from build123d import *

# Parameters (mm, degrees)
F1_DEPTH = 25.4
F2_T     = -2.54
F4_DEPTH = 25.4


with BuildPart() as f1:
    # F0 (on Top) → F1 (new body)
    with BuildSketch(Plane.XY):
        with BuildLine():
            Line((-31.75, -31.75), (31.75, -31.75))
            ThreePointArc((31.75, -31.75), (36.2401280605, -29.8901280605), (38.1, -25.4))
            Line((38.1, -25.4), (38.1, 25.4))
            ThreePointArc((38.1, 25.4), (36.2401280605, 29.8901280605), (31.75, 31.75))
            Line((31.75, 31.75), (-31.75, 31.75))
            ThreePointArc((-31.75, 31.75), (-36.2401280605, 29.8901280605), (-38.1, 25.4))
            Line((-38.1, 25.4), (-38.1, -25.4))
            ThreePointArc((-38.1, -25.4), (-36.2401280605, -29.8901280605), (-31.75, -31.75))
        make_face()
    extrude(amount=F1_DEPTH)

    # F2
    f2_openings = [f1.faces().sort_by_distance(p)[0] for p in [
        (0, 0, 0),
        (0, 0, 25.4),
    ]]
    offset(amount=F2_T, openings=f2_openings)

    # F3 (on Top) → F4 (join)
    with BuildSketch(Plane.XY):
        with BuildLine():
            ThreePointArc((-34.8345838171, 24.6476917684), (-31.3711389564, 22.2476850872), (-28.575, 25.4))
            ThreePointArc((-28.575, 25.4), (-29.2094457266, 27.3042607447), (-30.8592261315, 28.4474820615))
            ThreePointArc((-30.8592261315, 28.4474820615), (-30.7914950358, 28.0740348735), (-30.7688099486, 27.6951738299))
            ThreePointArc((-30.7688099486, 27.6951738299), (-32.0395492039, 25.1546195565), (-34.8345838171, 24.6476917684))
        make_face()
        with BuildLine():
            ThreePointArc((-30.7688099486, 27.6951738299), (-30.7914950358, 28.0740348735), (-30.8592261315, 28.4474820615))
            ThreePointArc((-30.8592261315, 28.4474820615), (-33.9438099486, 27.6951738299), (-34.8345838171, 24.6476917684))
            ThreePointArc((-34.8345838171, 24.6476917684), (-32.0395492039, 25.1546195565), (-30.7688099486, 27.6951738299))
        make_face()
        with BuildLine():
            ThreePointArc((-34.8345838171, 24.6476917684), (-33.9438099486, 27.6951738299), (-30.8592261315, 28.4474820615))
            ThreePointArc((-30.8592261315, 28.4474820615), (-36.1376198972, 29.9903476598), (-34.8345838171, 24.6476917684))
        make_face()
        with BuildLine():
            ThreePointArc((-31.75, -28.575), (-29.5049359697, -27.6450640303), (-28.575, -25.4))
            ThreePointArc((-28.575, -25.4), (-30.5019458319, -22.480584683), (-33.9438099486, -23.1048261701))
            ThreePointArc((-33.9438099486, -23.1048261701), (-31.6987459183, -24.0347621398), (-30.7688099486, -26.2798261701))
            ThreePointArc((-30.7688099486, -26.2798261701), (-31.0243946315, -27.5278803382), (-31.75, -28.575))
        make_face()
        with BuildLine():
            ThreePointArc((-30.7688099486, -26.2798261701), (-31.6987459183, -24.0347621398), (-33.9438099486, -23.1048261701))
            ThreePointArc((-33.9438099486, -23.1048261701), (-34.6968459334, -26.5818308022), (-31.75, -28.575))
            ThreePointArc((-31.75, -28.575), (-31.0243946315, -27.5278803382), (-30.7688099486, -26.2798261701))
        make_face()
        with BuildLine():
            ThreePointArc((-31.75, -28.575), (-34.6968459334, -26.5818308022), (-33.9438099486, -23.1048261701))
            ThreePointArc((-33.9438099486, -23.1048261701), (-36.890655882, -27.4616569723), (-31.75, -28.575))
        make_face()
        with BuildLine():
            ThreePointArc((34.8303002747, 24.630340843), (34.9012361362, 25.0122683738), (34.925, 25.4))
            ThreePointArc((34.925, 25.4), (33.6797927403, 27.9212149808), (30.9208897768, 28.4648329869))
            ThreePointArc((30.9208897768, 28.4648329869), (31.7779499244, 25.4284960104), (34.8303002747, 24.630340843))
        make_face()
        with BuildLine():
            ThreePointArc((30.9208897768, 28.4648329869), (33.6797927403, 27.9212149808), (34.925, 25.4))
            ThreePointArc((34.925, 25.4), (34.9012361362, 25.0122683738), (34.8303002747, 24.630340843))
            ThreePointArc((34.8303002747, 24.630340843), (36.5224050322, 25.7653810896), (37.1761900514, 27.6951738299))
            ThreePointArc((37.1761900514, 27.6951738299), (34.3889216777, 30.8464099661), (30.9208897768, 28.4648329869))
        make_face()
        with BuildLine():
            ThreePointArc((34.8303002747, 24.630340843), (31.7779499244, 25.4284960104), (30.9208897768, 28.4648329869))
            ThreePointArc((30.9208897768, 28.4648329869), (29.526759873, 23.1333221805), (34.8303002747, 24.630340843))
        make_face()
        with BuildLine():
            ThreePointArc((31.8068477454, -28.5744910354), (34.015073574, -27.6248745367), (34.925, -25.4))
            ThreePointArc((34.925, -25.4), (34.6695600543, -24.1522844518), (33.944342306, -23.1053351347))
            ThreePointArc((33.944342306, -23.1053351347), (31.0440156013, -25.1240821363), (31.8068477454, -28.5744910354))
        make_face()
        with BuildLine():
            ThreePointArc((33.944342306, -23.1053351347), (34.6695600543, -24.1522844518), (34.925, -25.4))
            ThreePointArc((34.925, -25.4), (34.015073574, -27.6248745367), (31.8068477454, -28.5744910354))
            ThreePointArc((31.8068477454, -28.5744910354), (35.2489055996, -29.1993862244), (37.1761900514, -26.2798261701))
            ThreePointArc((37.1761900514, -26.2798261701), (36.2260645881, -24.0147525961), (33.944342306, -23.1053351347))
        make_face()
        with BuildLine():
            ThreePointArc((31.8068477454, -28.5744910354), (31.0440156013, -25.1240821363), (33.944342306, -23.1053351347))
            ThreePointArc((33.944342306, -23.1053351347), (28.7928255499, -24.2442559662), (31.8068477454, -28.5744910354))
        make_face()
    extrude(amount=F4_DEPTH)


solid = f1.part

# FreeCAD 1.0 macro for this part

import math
import FreeCAD as App
import Part
import Sketcher
Q = App.Units.Quantity


def faces_at(feature, points):
    """Names of the faces that lie closest to the given points."""
    faces = feature.Shape.Faces
    near = lambda p: min(range(len(faces)), key=lambda i: faces[i].distToShape(Part.Vertex(*p))[0])
    return sorted({f"Face{near(p) + 1}" for p in points})

doc = App.newDocument("Part")
body = doc.addObject("PartDesign::Body", "Body")

sketch1 = body.newObject("Sketcher::SketchObject", "Sketch")
sketch1.AttachmentSupport = (doc.getObject("XY_Plane"), [""])
sketch1.MapMode = "FlatFace"
sketch1.addGeometry(Part.LineSegment(App.Vector(-31.75, -31.75, 0), App.Vector(31.75, -31.75, 0)), False)
sketch1.addGeometry(Part.ArcOfCircle(Part.Circle(App.Vector(31.75, -25.4, 0), App.Vector(0, 0, 1), 6.35), math.radians(-90), math.radians(0)), False)
sketch1.addGeometry(Part.LineSegment(App.Vector(38.1, -25.4, 0), App.Vector(38.1, 25.4, 0)), False)
sketch1.addGeometry(Part.ArcOfCircle(Part.Circle(App.Vector(31.75, 25.4, 0), App.Vector(0, 0, 1), 6.35), math.radians(0), math.radians(90)), False)
sketch1.addGeometry(Part.LineSegment(App.Vector(31.75, 31.75, 0), App.Vector(-31.75, 31.75, 0)), False)
sketch1.addGeometry(Part.ArcOfCircle(Part.Circle(App.Vector(-31.75, 25.4, 0), App.Vector(0, 0, 1), 6.35), math.radians(90), math.radians(180)), False)
sketch1.addGeometry(Part.LineSegment(App.Vector(-38.1, 25.4, 0), App.Vector(-38.1, -25.4, 0)), False)
sketch1.addGeometry(Part.ArcOfCircle(Part.Circle(App.Vector(-31.75, -25.4, 0), App.Vector(0, 0, 1), 6.35), math.radians(180), math.radians(270)), False)
sketch1.addConstraint(Sketcher.Constraint("Tangent", 0, 2, 1, 1))
sketch1.addConstraint(Sketcher.Constraint("Tangent", 1, 2, 2, 1))
sketch1.addConstraint(Sketcher.Constraint("Tangent", 2, 2, 3, 1))
sketch1.addConstraint(Sketcher.Constraint("Tangent", 3, 2, 4, 1))
sketch1.addConstraint(Sketcher.Constraint("Tangent", 4, 2, 5, 1))
sketch1.addConstraint(Sketcher.Constraint("Tangent", 5, 2, 6, 1))
sketch1.addConstraint(Sketcher.Constraint("Tangent", 6, 2, 7, 1))
sketch1.addConstraint(Sketcher.Constraint("Tangent", 7, 2, 0, 1))
sketch1.addConstraint(Sketcher.Constraint("Horizontal", 0))
sketch1.addConstraint(Sketcher.Constraint("Vertical", 2))
sketch1.addConstraint(Sketcher.Constraint("Horizontal", 4))
sketch1.addConstraint(Sketcher.Constraint("Vertical", 6))
sketch1.addConstraint(Sketcher.Constraint("Equal", 1, 3))
sketch1.addConstraint(Sketcher.Constraint("Equal", 3, 5))
sketch1.addConstraint(Sketcher.Constraint("Equal", 5, 7))
sketch1.addConstraint(Sketcher.Constraint("Symmetric", 1, 3, 5, 3, -1, 1))
sketch1.addConstraint(Sketcher.Constraint("DistanceY", 2, 1, 2, 2, Q("2 in")))
sketch1.addConstraint(Sketcher.Constraint("Radius", 1, Q("0.25 in")))
sketch1.addConstraint(Sketcher.Constraint("DistanceX", 0, 1, 0, 2, Q("2.5 in")))
pad1 = body.newObject("PartDesign::Pad", "Pad")
pad1.Profile = sketch1
pad1.Length = Q("1 in")
doc.recompute()

thickness = body.newObject("PartDesign::Thickness", "Thickness")
thickness.Base = (pad1, faces_at(pad1, [(0, 0, 0), (0, 0, 25.4)]))
thickness.Value = Q("0.1 in")
thickness.Reversed = True
thickness.Join = "Arc"

sketch2 = body.newObject("Sketcher::SketchObject", "Sketch001")
sketch2.AttachmentSupport = (doc.getObject("XY_Plane"), [""])
sketch2.MapMode = "FlatFace"
sketch2.addGeometry(Part.ArcOfCircle(Part.Circle(App.Vector(-31.75, 25.4, 0), App.Vector(0, 0, 1), 3.175), math.radians(-166.293552), math.radians(0)), False)
sketch2.addGeometry(Part.ArcOfCircle(Part.Circle(App.Vector(-31.75, 25.4, 0), App.Vector(0, 0, 1), 3.175), math.radians(0), math.radians(73.706448)), False)
sketch2.addGeometry(Part.ArcOfCircle(Part.Circle(App.Vector(-33.94381, 27.695174, 0), App.Vector(0, 0, 1), 3.175), math.radians(13.706448), math.radians(253.706448)), False)
sketch2.addGeometry(Part.ArcOfCircle(Part.Circle(App.Vector(-31.75, -25.4, 0), App.Vector(0, 0, 1), 3.175), math.radians(-90), math.radians(0)), False)
sketch2.addGeometry(Part.ArcOfCircle(Part.Circle(App.Vector(-31.75, -25.4, 0), App.Vector(0, 0, 1), 3.175), math.radians(0), math.radians(133.706448)), False)
sketch2.addGeometry(Part.ArcOfCircle(Part.Circle(App.Vector(-33.94381, -26.279826, 0), App.Vector(0, 0, 1), 3.175), math.radians(90), math.radians(313.706448)), False)
sketch2.addGeometry(Part.ArcOfCircle(Part.Circle(App.Vector(34.00119, 27.695174, 0), App.Vector(0, 0, 1), 3.175), math.radians(-74.862457), math.radians(0)), False)
sketch2.addGeometry(Part.ArcOfCircle(Part.Circle(App.Vector(34.00119, 27.695174, 0), App.Vector(0, 0, 1), 3.175), math.radians(0), math.radians(165.971038)), False)
sketch2.addGeometry(Part.ArcOfCircle(Part.Circle(App.Vector(31.75, 25.4, 0), App.Vector(0, 0, 1), 3.175), math.radians(105.137543), math.radians(345.971038)), False)
sketch2.addGeometry(Part.ArcOfCircle(Part.Circle(App.Vector(34.00119, -26.279826, 0), App.Vector(0, 0, 1), 3.175), math.radians(-133.719739), math.radians(0)), False)
sketch2.addGeometry(Part.ArcOfCircle(Part.Circle(App.Vector(34.00119, -26.279826, 0), App.Vector(0, 0, 1), 3.175), math.radians(0), math.radians(91.025924)), False)
sketch2.addGeometry(Part.ArcOfCircle(Part.Circle(App.Vector(31.75, -25.4, 0), App.Vector(0, 0, 1), 3.175), math.radians(46.280261), math.radians(271.025924)), False)
sketch2.addConstraint(Sketcher.Constraint("Tangent", 0, 2, 1, 1))
sketch2.addConstraint(Sketcher.Constraint("Coincident", 1, 2, 2, 1))
sketch2.addConstraint(Sketcher.Constraint("Coincident", 2, 2, 0, 1))
sketch2.addConstraint(Sketcher.Constraint("Tangent", 3, 2, 4, 1))
sketch2.addConstraint(Sketcher.Constraint("Coincident", 4, 2, 5, 1))
sketch2.addConstraint(Sketcher.Constraint("Coincident", 5, 2, 3, 1))
sketch2.addConstraint(Sketcher.Constraint("Tangent", 6, 2, 7, 1))
sketch2.addConstraint(Sketcher.Constraint("Coincident", 7, 2, 8, 1))
sketch2.addConstraint(Sketcher.Constraint("Coincident", 8, 2, 6, 1))
sketch2.addConstraint(Sketcher.Constraint("Tangent", 9, 2, 10, 1))
sketch2.addConstraint(Sketcher.Constraint("Coincident", 10, 2, 11, 1))
sketch2.addConstraint(Sketcher.Constraint("Coincident", 11, 2, 9, 1))
sketch2.addConstraint(Sketcher.Constraint("Equal", 0, 1))
sketch2.addConstraint(Sketcher.Constraint("Equal", 1, 2))
sketch2.addConstraint(Sketcher.Constraint("Equal", 2, 3))
sketch2.addConstraint(Sketcher.Constraint("Equal", 3, 4))
sketch2.addConstraint(Sketcher.Constraint("Equal", 4, 5))
sketch2.addConstraint(Sketcher.Constraint("Equal", 5, 6))
sketch2.addConstraint(Sketcher.Constraint("Equal", 6, 7))
sketch2.addConstraint(Sketcher.Constraint("Equal", 7, 8))
sketch2.addConstraint(Sketcher.Constraint("Equal", 8, 9))
sketch2.addConstraint(Sketcher.Constraint("Equal", 9, 10))
sketch2.addConstraint(Sketcher.Constraint("Equal", 10, 11))
sketch2.addConstraint(Sketcher.Constraint("Symmetric", 3, 3, 8, 3, -1, 1))
sketch2.addConstraint(Sketcher.Constraint("Symmetric", 0, 3, 11, 3, -1, 1))
sketch2.addConstraint(Sketcher.Constraint("Symmetric", 0, 3, 8, 3, -2))
sketch2.addConstraint(Sketcher.Constraint("Horizontal", 2, 3, 6, 3))
sketch2.addConstraint(Sketcher.Constraint("Horizontal", 5, 3, 9, 3))
sketch2.addConstraint(Sketcher.Constraint("Horizontal", 8, 3, 0, 2))
sketch2.addConstraint(Sketcher.Constraint("Horizontal", 11, 3, 3, 2))
sketch2.addConstraint(Sketcher.Constraint("Horizontal", 7, 3, 6, 2))
sketch2.addConstraint(Sketcher.Constraint("Horizontal", 10, 3, 9, 2))
sketch2.addConstraint(Sketcher.Constraint("Vertical", 2, 3, 5, 3))
sketch2.addConstraint(Sketcher.Constraint("Vertical", 7, 3, 9, 3))
sketch2.addConstraint(Sketcher.Constraint("Vertical", 5, 3, 4, 2))
sketch2.addConstraint(Sketcher.Constraint("DistanceY", -1, 1, 0, 3, Q("1 in")))
sketch2.addConstraint(Sketcher.Constraint("Radius", 0, Q("0.125 in")))
sketch2.addConstraint(Sketcher.Constraint("DistanceX", 0, 3, 8, 3, Q("2.5 in")))
sketch2.addConstraint(Sketcher.Constraint("DistanceY", 5, 3, 2, 3, Q("2.125 in")))
sketch2.addConstraint(Sketcher.Constraint("DistanceX", 2, 3, 6, 3, Q("2.675 in")))
sketch2.addConstraint(Sketcher.Constraint("DistanceX", -1, 1, 8, 2, 34.8303))
pad2 = body.newObject("PartDesign::Pad", "Pad001")
pad2.Profile = sketch2
pad2.Length = Q("1 in")

doc.recompute()
